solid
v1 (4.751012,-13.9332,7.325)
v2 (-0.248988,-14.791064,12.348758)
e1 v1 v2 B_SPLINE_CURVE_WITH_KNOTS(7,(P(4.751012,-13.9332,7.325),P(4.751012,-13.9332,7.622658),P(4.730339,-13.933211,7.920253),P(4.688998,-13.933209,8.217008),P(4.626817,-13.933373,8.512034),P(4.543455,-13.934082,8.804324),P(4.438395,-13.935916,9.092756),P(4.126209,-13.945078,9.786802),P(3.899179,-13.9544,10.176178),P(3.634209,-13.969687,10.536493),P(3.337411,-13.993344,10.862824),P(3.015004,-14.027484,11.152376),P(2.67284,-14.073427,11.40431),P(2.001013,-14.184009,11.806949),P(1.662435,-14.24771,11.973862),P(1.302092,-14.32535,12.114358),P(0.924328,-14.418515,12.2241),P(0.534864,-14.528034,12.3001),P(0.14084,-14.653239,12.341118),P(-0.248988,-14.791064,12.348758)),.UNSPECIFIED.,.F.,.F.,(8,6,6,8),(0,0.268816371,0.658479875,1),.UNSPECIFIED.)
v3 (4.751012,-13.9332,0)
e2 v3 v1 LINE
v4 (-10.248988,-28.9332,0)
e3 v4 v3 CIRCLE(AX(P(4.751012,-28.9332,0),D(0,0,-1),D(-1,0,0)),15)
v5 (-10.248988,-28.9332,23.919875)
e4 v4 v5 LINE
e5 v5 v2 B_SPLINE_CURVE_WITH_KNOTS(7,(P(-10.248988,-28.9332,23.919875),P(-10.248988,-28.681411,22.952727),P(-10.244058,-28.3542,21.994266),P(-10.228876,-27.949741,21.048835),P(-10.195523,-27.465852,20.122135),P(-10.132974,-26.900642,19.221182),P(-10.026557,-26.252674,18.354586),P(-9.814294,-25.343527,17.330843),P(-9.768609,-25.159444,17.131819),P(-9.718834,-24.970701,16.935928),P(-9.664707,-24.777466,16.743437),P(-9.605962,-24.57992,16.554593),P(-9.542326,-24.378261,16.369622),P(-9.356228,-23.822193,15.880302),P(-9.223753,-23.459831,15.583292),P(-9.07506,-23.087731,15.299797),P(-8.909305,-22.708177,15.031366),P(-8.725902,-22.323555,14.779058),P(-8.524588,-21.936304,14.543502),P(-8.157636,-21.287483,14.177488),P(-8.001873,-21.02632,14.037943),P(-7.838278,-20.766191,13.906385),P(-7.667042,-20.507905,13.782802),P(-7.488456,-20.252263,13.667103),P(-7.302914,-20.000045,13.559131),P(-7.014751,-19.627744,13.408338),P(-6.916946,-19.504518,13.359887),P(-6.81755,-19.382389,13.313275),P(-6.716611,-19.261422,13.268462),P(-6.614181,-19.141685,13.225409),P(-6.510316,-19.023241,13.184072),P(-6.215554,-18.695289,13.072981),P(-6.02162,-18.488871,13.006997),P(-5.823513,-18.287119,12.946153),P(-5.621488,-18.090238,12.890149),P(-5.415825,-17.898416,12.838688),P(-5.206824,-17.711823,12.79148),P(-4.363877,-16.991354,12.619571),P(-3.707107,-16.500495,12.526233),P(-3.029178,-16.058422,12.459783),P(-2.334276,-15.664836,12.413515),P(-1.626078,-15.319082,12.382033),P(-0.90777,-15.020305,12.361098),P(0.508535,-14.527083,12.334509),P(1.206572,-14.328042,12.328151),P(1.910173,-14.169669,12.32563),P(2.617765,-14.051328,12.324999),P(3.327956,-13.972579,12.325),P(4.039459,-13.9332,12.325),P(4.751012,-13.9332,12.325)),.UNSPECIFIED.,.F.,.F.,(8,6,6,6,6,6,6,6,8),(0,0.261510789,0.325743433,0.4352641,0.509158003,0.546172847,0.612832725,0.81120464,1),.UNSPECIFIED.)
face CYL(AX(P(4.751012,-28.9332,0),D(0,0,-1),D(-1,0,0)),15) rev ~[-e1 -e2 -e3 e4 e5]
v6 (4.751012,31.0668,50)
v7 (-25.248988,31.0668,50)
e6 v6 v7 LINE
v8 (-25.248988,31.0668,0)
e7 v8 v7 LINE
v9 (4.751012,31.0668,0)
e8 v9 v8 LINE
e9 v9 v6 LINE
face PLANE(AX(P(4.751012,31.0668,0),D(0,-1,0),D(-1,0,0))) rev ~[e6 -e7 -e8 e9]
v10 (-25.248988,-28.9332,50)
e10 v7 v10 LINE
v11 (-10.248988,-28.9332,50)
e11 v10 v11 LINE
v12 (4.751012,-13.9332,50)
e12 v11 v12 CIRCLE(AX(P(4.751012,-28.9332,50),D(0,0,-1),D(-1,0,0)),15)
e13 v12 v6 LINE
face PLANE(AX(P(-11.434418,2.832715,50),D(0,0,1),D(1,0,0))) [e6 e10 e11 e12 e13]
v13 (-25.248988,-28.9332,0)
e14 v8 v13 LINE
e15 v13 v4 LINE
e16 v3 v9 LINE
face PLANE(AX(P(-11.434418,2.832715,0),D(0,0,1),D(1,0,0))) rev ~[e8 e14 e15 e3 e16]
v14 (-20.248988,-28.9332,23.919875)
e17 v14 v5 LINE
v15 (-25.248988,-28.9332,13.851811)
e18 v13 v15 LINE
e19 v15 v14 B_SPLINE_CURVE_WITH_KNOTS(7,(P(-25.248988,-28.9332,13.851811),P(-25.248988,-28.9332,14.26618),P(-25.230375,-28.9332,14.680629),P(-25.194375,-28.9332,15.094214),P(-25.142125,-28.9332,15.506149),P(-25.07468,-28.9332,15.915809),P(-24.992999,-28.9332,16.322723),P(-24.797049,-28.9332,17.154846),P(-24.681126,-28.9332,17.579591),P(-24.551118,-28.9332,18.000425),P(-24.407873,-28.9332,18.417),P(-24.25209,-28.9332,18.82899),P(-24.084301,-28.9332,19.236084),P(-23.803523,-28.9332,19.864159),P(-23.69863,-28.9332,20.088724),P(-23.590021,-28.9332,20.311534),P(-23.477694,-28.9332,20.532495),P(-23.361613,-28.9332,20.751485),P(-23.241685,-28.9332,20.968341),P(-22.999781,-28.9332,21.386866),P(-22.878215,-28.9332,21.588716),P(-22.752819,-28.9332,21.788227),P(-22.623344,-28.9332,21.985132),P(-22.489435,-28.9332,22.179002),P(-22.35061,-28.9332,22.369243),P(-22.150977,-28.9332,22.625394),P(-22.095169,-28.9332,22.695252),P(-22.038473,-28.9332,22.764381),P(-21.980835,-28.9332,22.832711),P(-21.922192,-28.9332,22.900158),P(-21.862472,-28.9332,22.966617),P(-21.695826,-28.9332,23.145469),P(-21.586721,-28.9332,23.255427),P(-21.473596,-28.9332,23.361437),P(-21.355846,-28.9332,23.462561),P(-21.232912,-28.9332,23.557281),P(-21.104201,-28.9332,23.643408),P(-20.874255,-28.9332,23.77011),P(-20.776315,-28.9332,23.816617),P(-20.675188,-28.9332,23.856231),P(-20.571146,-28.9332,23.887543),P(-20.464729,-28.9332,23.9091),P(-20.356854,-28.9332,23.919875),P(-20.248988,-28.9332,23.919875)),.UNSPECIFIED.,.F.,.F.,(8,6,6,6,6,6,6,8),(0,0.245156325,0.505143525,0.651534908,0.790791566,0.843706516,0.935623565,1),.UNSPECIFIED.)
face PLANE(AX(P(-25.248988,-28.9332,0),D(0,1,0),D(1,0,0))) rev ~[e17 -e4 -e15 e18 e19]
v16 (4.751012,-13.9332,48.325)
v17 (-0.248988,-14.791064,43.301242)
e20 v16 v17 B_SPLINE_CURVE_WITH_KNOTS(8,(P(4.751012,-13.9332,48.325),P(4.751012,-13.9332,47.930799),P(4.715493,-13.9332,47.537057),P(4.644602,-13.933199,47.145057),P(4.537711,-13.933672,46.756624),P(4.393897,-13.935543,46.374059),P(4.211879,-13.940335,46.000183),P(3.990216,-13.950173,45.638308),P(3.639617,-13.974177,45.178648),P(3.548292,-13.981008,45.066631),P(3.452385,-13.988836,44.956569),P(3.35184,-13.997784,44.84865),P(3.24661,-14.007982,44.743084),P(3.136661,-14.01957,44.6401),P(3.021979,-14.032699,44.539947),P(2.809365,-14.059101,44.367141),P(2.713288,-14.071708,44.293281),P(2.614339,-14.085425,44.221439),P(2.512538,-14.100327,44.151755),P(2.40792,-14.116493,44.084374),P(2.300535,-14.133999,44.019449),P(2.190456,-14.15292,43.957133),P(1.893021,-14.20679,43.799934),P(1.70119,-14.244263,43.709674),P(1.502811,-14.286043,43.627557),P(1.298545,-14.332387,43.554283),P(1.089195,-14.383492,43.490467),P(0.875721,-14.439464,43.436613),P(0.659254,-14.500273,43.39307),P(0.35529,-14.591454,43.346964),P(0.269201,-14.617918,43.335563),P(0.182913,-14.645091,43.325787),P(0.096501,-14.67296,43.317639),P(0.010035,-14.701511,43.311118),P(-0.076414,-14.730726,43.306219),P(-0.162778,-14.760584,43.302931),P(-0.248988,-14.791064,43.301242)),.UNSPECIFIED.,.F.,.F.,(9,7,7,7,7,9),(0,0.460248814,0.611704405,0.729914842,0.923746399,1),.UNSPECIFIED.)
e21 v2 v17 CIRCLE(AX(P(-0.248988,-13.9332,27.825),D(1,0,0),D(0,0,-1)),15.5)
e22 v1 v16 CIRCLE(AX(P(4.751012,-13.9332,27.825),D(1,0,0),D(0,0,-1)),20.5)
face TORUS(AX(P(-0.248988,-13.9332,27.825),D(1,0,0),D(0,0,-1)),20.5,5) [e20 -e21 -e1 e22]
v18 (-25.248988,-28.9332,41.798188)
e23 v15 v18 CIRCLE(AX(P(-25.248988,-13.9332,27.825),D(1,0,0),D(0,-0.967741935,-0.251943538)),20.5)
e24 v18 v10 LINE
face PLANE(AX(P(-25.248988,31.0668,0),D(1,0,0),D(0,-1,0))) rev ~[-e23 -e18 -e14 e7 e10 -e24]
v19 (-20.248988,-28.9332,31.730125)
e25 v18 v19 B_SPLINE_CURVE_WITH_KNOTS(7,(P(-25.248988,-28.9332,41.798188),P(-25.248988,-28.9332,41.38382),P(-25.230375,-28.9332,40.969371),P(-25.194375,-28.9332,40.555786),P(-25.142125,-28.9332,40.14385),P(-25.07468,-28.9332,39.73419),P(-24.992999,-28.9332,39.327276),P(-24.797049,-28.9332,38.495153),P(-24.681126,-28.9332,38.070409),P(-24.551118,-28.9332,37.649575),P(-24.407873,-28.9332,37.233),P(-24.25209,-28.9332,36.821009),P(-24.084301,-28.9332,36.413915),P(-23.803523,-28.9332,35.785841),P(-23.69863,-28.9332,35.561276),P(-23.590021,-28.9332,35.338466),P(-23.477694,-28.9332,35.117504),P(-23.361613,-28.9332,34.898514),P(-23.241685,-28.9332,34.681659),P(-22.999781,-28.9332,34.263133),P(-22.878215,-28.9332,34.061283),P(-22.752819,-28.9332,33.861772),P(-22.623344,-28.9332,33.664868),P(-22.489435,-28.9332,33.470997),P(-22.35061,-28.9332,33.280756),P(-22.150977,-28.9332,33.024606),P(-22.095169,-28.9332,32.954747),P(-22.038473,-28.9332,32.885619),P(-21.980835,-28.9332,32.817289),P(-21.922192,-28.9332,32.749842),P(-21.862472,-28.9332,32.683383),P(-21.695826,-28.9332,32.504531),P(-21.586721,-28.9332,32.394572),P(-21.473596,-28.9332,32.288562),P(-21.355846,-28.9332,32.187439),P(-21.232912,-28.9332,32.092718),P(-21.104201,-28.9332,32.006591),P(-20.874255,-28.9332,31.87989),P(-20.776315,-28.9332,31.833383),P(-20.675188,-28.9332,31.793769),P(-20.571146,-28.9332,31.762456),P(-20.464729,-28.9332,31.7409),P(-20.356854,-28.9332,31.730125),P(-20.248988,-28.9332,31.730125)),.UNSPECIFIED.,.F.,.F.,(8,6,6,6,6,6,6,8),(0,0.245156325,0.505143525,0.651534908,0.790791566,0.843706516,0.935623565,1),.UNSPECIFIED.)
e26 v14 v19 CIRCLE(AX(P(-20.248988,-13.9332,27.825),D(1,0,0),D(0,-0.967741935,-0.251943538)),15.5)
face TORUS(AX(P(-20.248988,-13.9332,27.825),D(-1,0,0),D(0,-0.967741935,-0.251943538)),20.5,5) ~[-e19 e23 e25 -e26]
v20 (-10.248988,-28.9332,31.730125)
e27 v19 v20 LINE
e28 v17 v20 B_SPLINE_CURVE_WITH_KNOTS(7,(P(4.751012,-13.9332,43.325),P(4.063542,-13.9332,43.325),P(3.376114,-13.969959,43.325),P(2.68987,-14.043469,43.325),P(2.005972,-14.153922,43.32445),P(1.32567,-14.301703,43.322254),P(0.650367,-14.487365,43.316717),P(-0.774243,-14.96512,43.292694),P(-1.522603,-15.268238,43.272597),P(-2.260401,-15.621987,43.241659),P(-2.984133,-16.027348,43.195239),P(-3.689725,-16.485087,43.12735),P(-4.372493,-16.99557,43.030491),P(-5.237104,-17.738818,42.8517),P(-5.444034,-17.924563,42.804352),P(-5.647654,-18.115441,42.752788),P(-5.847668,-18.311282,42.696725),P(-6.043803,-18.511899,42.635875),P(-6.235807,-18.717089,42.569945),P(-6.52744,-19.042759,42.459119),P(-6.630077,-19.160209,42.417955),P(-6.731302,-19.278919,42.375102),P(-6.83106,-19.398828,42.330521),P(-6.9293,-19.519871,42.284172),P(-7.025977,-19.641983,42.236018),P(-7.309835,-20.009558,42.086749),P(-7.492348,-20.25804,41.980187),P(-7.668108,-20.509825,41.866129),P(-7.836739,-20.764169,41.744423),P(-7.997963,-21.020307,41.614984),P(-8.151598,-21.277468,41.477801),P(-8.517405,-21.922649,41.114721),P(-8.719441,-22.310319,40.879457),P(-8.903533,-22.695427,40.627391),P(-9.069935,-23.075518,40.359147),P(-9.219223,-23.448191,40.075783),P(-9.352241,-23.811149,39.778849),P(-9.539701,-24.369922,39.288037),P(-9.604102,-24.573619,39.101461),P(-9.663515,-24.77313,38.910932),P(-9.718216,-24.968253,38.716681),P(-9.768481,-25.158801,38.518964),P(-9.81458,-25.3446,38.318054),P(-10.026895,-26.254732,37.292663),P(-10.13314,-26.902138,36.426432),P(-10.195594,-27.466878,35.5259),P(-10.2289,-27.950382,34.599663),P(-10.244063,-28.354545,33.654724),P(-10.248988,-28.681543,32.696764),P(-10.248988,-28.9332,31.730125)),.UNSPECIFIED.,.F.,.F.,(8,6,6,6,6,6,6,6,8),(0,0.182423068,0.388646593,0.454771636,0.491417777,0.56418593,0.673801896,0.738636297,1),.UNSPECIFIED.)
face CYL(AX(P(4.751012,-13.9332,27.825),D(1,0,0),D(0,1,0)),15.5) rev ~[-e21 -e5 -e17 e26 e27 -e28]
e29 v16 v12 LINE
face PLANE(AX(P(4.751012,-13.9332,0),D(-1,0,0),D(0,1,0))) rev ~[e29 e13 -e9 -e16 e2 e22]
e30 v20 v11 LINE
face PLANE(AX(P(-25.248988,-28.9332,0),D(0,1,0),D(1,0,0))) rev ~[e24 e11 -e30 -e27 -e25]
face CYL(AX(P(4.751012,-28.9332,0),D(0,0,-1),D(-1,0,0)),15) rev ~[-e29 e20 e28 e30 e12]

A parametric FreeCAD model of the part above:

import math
import FreeCAD as App
import Part
import Sketcher


def edges_at(feature, points):
    """Names of the edges that pass closest to the given points."""
    edges = feature.Shape.Edges
    near = lambda p: min(range(len(edges)), key=lambda i: edges[i].distToShape(Part.Vertex(*p))[0])
    return sorted({f"Edge{near(p) + 1}" for p in points})

doc = App.newDocument("Part")
body = doc.addObject("PartDesign::Body", "Body")

# Sketch on XY plane
sketch1 = body.newObject("Sketcher::SketchObject", "Sketch")
sketch1.AttachmentSupport = (doc.getObject("XY_Plane"), [""])
sketch1.MapMode = "FlatFace"
sketch1.addGeometry([
    Part.LineSegment(App.Vector(-25, 31, 0), App.Vector(-25, -29, 0)),  # 0
    Part.LineSegment(App.Vector(-25, -29, 0), App.Vector(-10, -29, 0)),  # 1
    Part.ArcOfCircle(Part.Circle(App.Vector(5, -29, 0), App.Vector(0, 0, 1), 15), math.radians(90), math.radians(180)),  # 2
    Part.LineSegment(App.Vector(5, -14, 0), App.Vector(5, 31, 0)),  # 3
    Part.LineSegment(App.Vector(5, 31, 0), App.Vector(-25, 31, 0)),  # 4
], False)
sketch1.addConstraint([
    Sketcher.Constraint("Coincident", 0, 2, 1, 1),
    Sketcher.Constraint("Coincident", 1, 2, 2, 2),
    Sketcher.Constraint("Coincident", 2, 1, 3, 1),
    Sketcher.Constraint("Coincident", 3, 2, 4, 1),
    Sketcher.Constraint("Coincident", 4, 2, 0, 1),
    Sketcher.Constraint("Vertical", 0),
    Sketcher.Constraint("Horizontal", 1),
    Sketcher.Constraint("Vertical", 3),
    Sketcher.Constraint("Horizontal", 4),
    Sketcher.Constraint("Horizontal", 2, 3, 0, 2),
    Sketcher.Constraint("Radius", 2, 15.0),
    Sketcher.Constraint("DistanceX", 1, 1, 1, 2, 15.0),
    Sketcher.Constraint("DistanceX", 4, 2, 4, 1, 30.0),
    Sketcher.Constraint("DistanceY", 0, 2, 0, 1, 60.0),
    Sketcher.Constraint("DistanceY", 2, 3, -1, 1, 28.9332),
    Sketcher.Constraint("DistanceX", -1, 1, 2, 3, 4.751012),
])
pad1 = body.newObject("PartDesign::Pad", "Pad")
pad1.Profile = sketch1
pad1.Length = 50

# Sketch on YZ plane
sketch2 = body.newObject("Sketcher::SketchObject", "Sketch001")
sketch2.AttachmentSupport = (doc.getObject("YZ_Plane"), [""])
sketch2.MapMode = "FlatFace"
sketch2.AttachmentOffset = App.Placement(App.Vector(0, 0, 4.751012), App.Rotation())
sketch2.addGeometry(Part.Circle(App.Vector(-14, 28, 0), App.Vector(0, 0, 1), 16), False)
sketch2.addConstraint([
    Sketcher.Constraint("Diameter", 0, 31.0),
    Sketcher.Constraint("DistanceY", -1, 1, 0, 3, 27.825),
    Sketcher.Constraint("DistanceX", 0, 3, -1, 1, 13.9332),
])
pocket1 = body.newObject("PartDesign::Pocket", "Pocket")
pocket1.Profile = sketch2
pocket1.Length = 70
doc.recompute()

fillet = body.newObject("PartDesign::Fillet", "Fillet")
fillet.Base = (pocket1, edges_at(pocket1, [(4.751, 1.567, 27.825), (-25.249, 1.567, 27.825)]))
fillet.Radius = 5

doc.recompute()
